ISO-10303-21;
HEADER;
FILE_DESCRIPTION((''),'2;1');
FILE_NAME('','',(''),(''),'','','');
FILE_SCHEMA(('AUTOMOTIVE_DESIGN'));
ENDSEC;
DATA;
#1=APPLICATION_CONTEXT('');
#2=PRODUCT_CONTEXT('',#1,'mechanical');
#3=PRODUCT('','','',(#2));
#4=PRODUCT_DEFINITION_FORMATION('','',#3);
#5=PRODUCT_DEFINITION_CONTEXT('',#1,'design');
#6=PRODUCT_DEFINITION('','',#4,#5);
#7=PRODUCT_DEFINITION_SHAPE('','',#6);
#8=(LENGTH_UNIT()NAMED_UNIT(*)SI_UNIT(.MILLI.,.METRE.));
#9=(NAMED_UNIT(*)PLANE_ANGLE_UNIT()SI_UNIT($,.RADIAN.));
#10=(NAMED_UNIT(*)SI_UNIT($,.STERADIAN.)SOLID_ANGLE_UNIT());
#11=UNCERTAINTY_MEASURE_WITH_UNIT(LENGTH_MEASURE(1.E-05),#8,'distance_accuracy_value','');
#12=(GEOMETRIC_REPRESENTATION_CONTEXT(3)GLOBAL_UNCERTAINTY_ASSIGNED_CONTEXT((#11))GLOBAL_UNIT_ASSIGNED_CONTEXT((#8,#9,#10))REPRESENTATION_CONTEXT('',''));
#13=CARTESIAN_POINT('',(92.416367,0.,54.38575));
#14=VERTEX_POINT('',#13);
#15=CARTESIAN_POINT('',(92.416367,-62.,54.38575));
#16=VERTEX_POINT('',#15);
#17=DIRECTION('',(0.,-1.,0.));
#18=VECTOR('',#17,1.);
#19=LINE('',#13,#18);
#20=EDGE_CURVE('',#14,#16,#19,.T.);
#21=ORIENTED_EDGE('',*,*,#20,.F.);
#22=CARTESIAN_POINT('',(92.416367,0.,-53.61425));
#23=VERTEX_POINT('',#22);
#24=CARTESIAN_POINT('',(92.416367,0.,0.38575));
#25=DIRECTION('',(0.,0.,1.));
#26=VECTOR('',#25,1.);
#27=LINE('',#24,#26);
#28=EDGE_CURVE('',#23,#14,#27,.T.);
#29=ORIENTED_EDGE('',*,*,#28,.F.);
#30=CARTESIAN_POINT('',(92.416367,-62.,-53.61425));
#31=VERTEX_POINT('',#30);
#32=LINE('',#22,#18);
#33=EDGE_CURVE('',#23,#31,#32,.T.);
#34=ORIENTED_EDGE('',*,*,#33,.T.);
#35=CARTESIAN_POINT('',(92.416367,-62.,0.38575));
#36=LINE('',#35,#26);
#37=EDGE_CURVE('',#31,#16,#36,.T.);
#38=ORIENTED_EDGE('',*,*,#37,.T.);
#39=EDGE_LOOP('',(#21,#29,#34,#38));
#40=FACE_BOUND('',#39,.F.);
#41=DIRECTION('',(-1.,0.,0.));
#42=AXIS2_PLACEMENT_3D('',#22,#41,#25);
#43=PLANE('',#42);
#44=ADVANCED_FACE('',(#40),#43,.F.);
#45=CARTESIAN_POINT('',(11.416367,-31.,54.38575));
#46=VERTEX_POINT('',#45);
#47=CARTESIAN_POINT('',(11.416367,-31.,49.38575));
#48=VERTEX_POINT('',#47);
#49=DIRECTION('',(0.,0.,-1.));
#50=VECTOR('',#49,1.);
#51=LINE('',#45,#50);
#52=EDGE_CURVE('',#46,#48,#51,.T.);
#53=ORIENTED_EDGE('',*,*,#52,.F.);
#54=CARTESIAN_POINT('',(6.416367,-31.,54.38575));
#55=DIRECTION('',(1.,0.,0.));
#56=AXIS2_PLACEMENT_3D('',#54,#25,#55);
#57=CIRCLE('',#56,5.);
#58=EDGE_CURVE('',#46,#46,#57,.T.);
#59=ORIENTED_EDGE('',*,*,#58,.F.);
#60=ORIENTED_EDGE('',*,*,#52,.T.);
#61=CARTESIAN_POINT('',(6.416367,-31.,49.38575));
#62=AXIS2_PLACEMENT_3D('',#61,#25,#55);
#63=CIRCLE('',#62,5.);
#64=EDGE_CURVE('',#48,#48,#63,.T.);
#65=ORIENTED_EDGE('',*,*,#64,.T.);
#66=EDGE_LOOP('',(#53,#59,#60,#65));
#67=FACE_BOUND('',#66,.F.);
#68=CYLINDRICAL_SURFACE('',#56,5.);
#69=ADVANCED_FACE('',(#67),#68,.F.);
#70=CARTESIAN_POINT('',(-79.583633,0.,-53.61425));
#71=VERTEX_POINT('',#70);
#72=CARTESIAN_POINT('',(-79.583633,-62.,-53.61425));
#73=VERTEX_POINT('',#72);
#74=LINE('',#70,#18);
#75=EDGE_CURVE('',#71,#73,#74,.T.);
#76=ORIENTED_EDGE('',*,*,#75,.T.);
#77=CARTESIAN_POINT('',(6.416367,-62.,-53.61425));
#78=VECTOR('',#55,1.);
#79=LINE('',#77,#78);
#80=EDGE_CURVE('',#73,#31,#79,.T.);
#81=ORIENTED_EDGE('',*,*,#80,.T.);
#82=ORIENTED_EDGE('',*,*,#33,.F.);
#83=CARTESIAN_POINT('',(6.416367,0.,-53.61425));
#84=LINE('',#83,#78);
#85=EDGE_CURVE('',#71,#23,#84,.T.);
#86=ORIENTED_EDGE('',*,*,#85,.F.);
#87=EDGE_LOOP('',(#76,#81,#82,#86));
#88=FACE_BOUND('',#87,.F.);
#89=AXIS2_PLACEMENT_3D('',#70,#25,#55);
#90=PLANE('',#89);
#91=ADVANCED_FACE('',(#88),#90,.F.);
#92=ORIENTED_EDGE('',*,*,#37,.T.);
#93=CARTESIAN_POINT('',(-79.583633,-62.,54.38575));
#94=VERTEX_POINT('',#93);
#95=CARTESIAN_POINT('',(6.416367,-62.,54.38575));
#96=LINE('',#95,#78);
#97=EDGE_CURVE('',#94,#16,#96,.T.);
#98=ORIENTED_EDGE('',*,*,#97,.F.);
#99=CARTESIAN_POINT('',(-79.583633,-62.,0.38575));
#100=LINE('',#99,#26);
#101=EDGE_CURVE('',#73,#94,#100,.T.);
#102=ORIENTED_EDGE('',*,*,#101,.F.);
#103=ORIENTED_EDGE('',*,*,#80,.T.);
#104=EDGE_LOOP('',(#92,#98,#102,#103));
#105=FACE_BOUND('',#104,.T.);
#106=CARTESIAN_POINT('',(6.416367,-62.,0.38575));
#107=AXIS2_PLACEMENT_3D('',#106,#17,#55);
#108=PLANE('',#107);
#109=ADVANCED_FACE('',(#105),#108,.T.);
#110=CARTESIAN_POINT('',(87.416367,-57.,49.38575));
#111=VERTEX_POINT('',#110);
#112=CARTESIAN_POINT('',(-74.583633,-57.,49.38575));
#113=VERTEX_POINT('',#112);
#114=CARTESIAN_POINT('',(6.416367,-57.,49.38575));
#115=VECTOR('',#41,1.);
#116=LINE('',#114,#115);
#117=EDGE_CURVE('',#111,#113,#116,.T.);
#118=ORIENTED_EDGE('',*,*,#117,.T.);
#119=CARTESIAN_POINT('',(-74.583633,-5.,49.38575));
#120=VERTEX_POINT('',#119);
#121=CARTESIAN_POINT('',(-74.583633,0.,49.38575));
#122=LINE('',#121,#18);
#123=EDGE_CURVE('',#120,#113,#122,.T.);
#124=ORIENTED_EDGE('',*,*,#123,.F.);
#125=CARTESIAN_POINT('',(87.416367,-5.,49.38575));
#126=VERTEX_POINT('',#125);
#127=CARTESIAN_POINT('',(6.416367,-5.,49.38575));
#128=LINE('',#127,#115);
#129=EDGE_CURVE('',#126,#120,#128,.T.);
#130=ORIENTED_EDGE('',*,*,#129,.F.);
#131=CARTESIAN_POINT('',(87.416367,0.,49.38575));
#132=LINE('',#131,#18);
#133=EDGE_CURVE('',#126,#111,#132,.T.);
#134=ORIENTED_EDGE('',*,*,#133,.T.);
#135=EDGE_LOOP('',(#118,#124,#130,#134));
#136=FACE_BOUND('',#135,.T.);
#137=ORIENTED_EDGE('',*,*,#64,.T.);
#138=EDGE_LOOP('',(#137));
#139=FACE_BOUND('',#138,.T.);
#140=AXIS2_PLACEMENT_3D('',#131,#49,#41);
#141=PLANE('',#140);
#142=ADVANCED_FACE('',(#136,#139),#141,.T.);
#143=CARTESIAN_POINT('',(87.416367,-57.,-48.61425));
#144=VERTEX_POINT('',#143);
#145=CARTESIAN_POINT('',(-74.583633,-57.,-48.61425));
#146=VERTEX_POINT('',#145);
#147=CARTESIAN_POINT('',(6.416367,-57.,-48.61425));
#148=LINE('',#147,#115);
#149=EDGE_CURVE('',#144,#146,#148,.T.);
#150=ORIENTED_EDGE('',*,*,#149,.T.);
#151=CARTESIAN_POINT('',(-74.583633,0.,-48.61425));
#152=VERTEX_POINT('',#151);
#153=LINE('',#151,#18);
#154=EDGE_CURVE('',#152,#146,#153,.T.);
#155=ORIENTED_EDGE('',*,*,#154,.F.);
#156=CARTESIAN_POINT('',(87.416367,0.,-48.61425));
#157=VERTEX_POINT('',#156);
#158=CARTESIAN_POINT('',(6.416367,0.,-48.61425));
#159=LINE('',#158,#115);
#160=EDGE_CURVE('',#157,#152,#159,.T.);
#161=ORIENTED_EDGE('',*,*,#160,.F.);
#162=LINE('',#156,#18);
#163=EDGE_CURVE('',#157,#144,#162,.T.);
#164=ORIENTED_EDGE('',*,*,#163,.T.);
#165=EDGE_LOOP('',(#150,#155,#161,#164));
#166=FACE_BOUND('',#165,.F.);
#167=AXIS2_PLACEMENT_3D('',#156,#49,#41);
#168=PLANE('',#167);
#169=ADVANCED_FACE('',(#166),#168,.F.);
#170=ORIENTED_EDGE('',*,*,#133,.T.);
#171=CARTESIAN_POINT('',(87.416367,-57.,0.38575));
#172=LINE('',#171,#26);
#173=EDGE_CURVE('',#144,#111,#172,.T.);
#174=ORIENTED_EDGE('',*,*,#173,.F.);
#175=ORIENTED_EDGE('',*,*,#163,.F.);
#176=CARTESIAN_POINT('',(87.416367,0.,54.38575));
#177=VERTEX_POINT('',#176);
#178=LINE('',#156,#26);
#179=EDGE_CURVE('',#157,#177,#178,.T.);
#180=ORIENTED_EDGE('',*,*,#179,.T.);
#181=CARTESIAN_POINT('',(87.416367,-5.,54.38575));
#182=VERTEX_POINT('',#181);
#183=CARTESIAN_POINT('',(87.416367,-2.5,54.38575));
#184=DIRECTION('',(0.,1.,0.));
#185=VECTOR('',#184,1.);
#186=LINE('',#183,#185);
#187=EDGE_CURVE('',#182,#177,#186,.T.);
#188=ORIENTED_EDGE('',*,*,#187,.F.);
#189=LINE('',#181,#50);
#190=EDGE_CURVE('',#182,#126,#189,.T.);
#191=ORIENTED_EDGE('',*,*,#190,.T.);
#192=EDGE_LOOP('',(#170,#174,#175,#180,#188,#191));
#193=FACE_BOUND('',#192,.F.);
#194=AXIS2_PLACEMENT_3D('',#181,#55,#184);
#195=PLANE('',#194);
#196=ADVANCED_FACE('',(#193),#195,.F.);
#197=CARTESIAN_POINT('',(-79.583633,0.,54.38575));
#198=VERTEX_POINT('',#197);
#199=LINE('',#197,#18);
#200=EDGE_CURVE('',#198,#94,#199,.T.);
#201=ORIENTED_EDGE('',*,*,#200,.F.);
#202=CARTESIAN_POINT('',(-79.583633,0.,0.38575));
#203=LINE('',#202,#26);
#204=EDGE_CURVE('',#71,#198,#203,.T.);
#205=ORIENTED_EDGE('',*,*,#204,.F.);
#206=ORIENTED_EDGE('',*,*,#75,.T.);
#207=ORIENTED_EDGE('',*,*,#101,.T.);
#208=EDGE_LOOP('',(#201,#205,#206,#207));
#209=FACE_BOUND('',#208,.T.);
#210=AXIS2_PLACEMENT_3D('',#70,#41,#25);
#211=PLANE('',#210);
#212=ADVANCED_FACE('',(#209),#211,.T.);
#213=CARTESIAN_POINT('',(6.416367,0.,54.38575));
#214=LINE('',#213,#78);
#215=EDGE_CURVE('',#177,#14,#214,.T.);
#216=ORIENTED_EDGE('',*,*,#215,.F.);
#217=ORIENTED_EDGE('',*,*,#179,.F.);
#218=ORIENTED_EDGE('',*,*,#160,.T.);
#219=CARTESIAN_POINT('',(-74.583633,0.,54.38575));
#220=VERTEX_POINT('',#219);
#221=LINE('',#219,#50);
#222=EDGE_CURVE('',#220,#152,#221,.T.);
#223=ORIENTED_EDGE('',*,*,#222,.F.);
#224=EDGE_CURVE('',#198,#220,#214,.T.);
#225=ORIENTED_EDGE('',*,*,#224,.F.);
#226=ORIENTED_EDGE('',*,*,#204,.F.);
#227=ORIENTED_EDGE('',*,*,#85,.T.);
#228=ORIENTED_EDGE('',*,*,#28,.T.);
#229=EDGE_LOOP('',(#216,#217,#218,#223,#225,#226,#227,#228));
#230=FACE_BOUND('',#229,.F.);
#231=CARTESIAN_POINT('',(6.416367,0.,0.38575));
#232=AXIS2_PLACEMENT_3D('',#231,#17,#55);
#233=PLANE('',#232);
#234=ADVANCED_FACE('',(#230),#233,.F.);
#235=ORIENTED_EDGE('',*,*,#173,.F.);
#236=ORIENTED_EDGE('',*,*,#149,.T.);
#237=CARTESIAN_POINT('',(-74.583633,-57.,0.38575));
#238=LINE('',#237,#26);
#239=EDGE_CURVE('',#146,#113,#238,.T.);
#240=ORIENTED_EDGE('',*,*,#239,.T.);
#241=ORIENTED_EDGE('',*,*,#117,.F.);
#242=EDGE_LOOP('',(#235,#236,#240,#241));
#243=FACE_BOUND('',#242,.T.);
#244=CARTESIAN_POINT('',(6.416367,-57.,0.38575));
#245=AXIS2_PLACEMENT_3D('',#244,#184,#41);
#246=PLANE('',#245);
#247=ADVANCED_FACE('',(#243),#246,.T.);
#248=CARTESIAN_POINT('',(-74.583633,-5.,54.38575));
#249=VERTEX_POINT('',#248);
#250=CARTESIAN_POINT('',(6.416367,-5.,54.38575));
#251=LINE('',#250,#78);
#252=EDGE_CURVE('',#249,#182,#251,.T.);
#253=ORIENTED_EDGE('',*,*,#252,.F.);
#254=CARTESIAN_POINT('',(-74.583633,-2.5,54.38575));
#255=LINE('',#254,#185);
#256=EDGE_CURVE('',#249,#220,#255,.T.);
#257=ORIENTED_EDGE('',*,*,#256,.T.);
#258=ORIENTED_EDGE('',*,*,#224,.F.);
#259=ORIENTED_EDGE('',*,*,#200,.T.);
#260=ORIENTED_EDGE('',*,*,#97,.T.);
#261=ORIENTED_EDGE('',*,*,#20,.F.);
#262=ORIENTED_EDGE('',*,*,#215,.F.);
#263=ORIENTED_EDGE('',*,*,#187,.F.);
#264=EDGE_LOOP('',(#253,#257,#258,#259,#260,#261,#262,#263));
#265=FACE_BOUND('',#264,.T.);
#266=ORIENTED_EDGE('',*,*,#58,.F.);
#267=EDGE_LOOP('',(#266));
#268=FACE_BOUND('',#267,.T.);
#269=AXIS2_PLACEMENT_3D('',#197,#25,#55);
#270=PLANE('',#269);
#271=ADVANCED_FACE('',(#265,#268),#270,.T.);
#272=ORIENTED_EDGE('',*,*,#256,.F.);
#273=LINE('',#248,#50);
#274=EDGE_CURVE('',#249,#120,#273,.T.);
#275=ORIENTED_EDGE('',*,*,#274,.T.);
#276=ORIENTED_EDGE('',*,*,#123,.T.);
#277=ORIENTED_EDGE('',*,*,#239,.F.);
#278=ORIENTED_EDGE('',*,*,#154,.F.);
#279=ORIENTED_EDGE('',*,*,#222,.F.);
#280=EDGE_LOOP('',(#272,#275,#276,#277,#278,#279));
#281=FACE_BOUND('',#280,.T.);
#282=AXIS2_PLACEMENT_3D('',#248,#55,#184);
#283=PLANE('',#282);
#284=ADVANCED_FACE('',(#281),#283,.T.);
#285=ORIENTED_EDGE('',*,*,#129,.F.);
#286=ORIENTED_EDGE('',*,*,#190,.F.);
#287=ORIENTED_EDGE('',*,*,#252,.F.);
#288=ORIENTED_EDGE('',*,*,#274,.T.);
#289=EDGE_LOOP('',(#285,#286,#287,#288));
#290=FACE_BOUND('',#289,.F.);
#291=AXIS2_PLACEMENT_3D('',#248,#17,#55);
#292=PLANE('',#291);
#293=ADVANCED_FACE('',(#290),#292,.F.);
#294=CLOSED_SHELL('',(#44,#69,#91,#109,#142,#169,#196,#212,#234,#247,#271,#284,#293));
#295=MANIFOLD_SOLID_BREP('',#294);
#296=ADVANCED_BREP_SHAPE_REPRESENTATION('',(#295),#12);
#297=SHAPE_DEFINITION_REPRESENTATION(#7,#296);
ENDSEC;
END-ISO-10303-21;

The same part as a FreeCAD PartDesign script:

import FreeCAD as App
import Part
import Sketcher


def add_polygon(sketch, points):
    """Adds a closed chain of lines whose ends are joined by coincident constraints."""
    first, n = sketch.GeometryCount, len(points)
    for a, b in zip(points, points[1:] + points[:1]):
        sketch.addGeometry(Part.LineSegment(App.Vector(*a, 0), App.Vector(*b, 0)), False)
    for i in range(n):
        sketch.addConstraint(Sketcher.Constraint("Coincident", first + i, 2, first + (i + 1) % n, 1))

doc = App.newDocument("Part")
body = doc.addObject("PartDesign::Body", "Body")

# Sketch on XZ plane
sketch1 = doc.addObject("Sketcher::SketchObject", "Sketch")
body.addObject(sketch1)
sketch1.AttachmentSupport = (doc.XZ_Plane, [""])
sketch1.MapMode = "FlatFace"
add_polygon(sketch1, [(-80, 54), (-80, -54), (92, -54), (92, 54)])  # lines 0-3
sketch1.addConstraint([
    Sketcher.Constraint("Vertical", 0),
    Sketcher.Constraint("Horizontal", 1),
    Sketcher.Constraint("Vertical", 2),
    Sketcher.Constraint("Horizontal", 3),
    Sketcher.Constraint("DistanceX", 1, 1, 1, 2, 172.0),
    Sketcher.Constraint("DistanceY", 0, 2, 0, 1, 108.0),
    Sketcher.Constraint("DistanceY", 0, 2, -1, 1, 53.61425),
    Sketcher.Constraint("DistanceX", 0, 2, -1, 1, 79.583633),
])
pad1 = doc.addObject("PartDesign::Pad", "Pad")
body.addObject(pad1)
pad1.Profile = sketch1
pad1.Length = 62

# Sketch on XZ plane
sketch2 = doc.addObject("Sketcher::SketchObject", "Sketch001")
body.addObject(sketch2)
sketch2.AttachmentSupport = (doc.XZ_Plane, [""])
sketch2.MapMode = "FlatFace"
add_polygon(sketch2, [(87, 49), (87, -49), (-75, -49), (-75, 49)])  # lines 0-3
sketch2.addConstraint([
    Sketcher.Constraint("Vertical", 0),
    Sketcher.Constraint("Horizontal", 1),
    Sketcher.Constraint("Vertical", 2),
    Sketcher.Constraint("Horizontal", 3),
    Sketcher.Constraint("DistanceX", 1, 2, 1, 1, 162.0),
    Sketcher.Constraint("DistanceY", 0, 2, 0, 1, 98.0),
    Sketcher.Constraint("DistanceY", 0, 2, -1, 1, 48.61425),
    Sketcher.Constraint("DistanceX", -1, 1, 0, 2, 87.416367),
])
pocket1 = doc.addObject("PartDesign::Pocket", "Pocket")
body.addObject(pocket1)
pocket1.Profile = sketch2
pocket1.Length = 57
pocket1.Reversed = True

# Sketch on XY plane
sketch3 = doc.addObject("Sketcher::SketchObject", "Sketch002")
body.addObject(sketch3)
sketch3.AttachmentSupport = (doc.XY_Plane, [""])
sketch3.MapMode = "FlatFace"
sketch3.AttachmentOffset = App.Placement(App.Vector(0, 0, 54.38575), App.Rotation())
sketch3.addGeometry(Part.Circle(App.Vector(6, -31, 0), App.Vector(0, 0, 1), 5), False)
sketch3.addConstraint([
    Sketcher.Constraint("Diameter", 0, 10.0),
    Sketcher.Constraint("DistanceY", 0, 3, -1, 1, 31.0),
    Sketcher.Constraint("DistanceX", -1, 1, 0, 3, 6.416367),
])
pocket2 = doc.addObject("PartDesign::Pocket", "Pocket001")
body.addObject(pocket2)
pocket2.Profile = sketch3
pocket2.Length = 25

# Sketch on XY plane
sketch4 = doc.addObject("Sketcher::SketchObject", "Sketch003")
body.addObject(sketch4)
sketch4.AttachmentSupport = (doc.XY_Plane, [""])
sketch4.MapMode = "FlatFace"
sketch4.AttachmentOffset = App.Placement(App.Vector(0, 0, 54.38575), App.Rotation())
add_polygon(sketch4, [(-75, 0), (-75, -5), (87, -5), (87, 0)])  # lines 0-3
sketch4.addConstraint([
    Sketcher.Constraint("Vertical", 0),
    Sketcher.Constraint("Horizontal", 1),
    Sketcher.Constraint("Vertical", 2),
    Sketcher.Constraint("Horizontal", 3),
    Sketcher.Constraint("PointOnObject", 2, 2, -1),
    Sketcher.Constraint("DistanceX", 1, 1, 1, 2, 162.0),
    Sketcher.Constraint("DistanceY", 0, 2, 0, 1, 5.0),
    Sketcher.Constraint("DistanceX", 0, 2, -1, 1, 74.583633),
])
pocket3 = doc.addObject("PartDesign::Pocket", "Pocket002")
body.addObject(pocket3)
pocket3.Profile = sketch4
pocket3.Length = 25

doc.recompute()
